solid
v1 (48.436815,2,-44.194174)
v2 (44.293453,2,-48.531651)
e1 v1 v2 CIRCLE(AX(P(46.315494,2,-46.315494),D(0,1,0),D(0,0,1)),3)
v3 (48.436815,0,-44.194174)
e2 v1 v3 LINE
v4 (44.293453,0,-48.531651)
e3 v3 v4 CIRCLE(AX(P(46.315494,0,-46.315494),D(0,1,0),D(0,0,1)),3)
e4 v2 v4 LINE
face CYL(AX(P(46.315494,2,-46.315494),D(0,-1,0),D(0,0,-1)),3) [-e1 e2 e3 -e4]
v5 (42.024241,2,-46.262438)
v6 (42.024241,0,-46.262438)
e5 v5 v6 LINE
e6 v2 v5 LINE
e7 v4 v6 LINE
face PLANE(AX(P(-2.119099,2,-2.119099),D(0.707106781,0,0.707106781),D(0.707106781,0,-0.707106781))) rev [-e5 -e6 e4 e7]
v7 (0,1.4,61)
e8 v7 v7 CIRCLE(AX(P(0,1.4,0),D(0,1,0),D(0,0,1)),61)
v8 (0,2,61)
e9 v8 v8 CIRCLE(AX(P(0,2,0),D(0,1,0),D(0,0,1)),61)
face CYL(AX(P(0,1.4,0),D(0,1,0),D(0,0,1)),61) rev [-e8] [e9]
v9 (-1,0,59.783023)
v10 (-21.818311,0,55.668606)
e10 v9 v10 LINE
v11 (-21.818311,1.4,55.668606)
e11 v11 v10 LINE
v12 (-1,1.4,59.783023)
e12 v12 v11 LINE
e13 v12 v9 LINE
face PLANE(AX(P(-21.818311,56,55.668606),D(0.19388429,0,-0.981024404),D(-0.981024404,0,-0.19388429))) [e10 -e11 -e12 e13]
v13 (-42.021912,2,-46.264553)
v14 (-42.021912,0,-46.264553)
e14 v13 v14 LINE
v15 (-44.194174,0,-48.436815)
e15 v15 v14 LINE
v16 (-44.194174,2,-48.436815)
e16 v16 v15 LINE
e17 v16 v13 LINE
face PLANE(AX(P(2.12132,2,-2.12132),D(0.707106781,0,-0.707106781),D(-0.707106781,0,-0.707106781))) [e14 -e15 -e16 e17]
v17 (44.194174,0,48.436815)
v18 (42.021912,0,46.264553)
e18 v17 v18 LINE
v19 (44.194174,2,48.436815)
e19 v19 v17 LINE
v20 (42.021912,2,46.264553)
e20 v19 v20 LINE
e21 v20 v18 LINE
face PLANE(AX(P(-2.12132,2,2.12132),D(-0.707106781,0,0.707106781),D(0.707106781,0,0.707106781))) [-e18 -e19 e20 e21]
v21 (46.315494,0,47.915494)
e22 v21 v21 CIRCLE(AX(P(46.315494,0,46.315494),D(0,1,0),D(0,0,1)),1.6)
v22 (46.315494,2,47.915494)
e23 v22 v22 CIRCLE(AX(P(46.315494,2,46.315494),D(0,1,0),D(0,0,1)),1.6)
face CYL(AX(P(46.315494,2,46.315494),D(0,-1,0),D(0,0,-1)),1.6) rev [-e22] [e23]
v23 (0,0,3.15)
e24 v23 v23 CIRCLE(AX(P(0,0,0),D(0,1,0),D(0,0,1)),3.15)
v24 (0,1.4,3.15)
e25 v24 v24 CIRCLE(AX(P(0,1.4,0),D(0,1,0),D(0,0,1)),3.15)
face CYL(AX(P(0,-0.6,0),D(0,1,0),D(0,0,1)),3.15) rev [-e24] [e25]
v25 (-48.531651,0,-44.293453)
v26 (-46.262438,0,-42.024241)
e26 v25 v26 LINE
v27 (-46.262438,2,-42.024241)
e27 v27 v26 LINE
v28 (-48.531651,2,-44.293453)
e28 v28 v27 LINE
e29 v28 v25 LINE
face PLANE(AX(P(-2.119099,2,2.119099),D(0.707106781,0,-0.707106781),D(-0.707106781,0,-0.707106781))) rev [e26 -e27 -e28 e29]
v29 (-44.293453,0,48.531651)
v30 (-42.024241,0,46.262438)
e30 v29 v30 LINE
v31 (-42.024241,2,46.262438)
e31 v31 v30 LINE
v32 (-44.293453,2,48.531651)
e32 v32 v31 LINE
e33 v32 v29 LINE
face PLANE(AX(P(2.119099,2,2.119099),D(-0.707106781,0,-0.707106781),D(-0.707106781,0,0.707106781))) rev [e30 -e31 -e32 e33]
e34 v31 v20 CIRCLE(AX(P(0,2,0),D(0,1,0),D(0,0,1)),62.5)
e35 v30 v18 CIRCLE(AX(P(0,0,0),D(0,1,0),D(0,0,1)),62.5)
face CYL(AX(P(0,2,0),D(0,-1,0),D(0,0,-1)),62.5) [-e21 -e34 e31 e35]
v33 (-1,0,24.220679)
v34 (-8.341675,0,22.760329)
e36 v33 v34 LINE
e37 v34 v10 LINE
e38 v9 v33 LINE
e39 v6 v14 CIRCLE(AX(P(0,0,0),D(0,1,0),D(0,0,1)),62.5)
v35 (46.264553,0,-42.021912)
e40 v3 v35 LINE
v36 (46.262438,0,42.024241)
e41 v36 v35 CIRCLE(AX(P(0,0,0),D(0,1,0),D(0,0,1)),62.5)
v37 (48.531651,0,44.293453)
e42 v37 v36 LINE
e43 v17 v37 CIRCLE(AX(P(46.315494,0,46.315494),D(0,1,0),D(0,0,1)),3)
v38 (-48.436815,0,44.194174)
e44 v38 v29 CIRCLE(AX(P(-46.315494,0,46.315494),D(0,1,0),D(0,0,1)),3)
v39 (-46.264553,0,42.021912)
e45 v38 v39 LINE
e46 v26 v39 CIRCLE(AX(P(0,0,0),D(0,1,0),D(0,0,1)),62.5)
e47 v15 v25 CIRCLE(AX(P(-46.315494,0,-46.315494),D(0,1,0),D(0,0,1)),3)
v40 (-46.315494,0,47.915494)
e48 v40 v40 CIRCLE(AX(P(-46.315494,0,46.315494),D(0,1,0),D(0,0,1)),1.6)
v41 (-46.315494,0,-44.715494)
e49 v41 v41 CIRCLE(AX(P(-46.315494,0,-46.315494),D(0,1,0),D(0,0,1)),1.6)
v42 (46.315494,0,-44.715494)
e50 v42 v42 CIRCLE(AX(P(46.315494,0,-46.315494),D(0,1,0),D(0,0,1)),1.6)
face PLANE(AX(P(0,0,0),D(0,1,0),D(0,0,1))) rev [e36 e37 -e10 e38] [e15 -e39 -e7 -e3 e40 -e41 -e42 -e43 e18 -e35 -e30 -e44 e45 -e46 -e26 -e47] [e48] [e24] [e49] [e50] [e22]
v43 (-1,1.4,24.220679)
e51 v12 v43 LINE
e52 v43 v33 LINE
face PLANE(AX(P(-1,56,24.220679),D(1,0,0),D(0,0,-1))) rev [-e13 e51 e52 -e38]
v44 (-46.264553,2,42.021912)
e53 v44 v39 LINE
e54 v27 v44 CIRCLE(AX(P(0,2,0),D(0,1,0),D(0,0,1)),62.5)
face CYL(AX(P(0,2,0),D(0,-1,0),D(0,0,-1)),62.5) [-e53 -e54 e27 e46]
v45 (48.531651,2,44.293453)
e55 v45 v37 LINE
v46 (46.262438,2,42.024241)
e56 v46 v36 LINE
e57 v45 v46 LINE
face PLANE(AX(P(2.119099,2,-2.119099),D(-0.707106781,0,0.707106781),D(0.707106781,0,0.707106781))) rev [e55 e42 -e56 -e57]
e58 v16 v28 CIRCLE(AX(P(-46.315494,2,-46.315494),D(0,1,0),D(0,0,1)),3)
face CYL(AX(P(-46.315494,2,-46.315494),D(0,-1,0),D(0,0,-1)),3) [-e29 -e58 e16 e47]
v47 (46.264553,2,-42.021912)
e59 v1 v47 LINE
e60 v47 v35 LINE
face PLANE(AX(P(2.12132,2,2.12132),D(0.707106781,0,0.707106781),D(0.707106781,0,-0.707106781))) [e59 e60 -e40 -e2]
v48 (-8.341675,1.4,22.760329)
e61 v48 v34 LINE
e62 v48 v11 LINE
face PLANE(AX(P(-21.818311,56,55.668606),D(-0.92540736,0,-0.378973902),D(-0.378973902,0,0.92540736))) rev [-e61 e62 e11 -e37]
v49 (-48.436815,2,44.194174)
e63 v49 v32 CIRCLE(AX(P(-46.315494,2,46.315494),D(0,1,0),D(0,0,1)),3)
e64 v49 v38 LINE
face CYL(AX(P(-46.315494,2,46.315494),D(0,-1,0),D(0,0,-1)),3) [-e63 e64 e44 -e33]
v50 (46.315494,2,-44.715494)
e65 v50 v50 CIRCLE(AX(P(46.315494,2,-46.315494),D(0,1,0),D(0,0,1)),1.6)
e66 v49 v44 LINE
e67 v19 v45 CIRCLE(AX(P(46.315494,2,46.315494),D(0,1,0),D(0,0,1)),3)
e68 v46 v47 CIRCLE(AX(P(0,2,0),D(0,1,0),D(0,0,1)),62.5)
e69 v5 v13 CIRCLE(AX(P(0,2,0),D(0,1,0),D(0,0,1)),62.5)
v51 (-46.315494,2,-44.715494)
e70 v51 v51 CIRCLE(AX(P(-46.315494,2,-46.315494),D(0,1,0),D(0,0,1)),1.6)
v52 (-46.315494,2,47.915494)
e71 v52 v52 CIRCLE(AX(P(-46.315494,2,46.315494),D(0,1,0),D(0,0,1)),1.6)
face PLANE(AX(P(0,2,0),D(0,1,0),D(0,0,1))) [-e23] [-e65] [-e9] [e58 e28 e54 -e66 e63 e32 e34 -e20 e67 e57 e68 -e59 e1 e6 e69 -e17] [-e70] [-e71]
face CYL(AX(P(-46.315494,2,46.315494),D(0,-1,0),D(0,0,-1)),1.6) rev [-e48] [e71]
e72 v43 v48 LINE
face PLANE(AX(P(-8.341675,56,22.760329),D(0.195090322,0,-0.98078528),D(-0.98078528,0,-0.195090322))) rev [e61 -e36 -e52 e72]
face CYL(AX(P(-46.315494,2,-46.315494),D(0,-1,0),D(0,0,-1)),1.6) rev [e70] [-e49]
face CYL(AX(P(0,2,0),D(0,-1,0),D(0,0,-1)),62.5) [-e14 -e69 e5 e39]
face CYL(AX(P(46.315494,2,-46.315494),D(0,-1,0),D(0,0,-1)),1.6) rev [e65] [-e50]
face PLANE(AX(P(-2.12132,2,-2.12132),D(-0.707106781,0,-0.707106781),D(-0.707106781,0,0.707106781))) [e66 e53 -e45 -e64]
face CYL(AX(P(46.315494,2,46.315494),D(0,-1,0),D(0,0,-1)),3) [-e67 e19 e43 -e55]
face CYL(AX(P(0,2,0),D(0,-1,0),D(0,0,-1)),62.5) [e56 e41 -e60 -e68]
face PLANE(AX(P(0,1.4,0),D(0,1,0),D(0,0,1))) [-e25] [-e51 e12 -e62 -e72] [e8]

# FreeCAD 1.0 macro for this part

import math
import FreeCAD as App
import Part
import Sketcher
from FreeCAD import Vector
Q = App.Units.Quantity

doc = App.newDocument("Part")
body = doc.addObject("PartDesign::Body", "Body")

# Sketch on XZ plane
sketch1 = body.newObject("Sketcher::SketchObject", "Sketch")
sketch1.AttachmentSupport = (doc.getObject("XZ_Plane"), [""])
sketch1.MapMode = "FlatFace"
sketch1.addGeometry([
    Part.ArcOfCircle(Part.Circle(Vector(-46.315494, -46.315494, 0), Vector(0, 0, 1), 3), math.radians(137.622401), math.radians(315)),  # 0
    Part.LineSegment(Vector(-48.531651, -44.293453, 0), Vector(-48.337535, -44.099337, 0)),  # 1
    Part.LineSegment(Vector(-48.337535, -44.099337, 0), Vector(-46.262438, -42.024241, 0)),  # 2
    Part.ArcOfCircle(Part.Circle(Vector(0, 0, 0), Vector(0, 0, 1), 62.5), math.radians(137.751255), math.radians(222.251629)),  # 3
    Part.LineSegment(Vector(-46.264553, 42.021912, 0), Vector(-48.436815, 44.194174, 0)),  # 4
    Part.ArcOfCircle(Part.Circle(Vector(-46.315494, 46.315494, 0), Vector(0, 0, 1), 3), math.radians(47.622401), math.radians(225)),  # 5
    Part.LineSegment(Vector(-44.293453, 48.531651, 0), Vector(-44.099337, 48.337535, 0)),  # 6
    Part.LineSegment(Vector(-44.099337, 48.337535, 0), Vector(-42.024241, 46.262438, 0)),  # 7
    Part.ArcOfCircle(Part.Circle(Vector(0, 0, 0), Vector(0, 0, 1), 62.5), math.radians(47.751255), math.radians(132.251629)),  # 8
    Part.LineSegment(Vector(42.021912, 46.264553, 0), Vector(44.194174, 48.436815, 0)),  # 9
    Part.ArcOfCircle(Part.Circle(Vector(46.315494, 46.315494, 0), Vector(0, 0, 1), 3), math.radians(-42.377599), math.radians(135)),  # 10
    Part.LineSegment(Vector(48.531651, 44.293453, 0), Vector(48.337535, 44.099337, 0)),  # 11
    Part.LineSegment(Vector(48.337535, 44.099337, 0), Vector(46.262438, 42.024241, 0)),  # 12
    Part.ArcOfCircle(Part.Circle(Vector(0, 0, 0), Vector(0, 0, 1), 62.5), math.radians(-42.248745), math.radians(42.251629)),  # 13
    Part.LineSegment(Vector(46.264553, -42.021912, 0), Vector(48.436815, -44.194174, 0)),  # 14
    Part.ArcOfCircle(Part.Circle(Vector(46.315494, -46.315494, 0), Vector(0, 0, 1), 3), math.radians(-132.377599), math.radians(45)),  # 15
    Part.LineSegment(Vector(44.293453, -48.531651, 0), Vector(44.099337, -48.337535, 0)),  # 16
    Part.LineSegment(Vector(44.099337, -48.337535, 0), Vector(42.024241, -46.262438, 0)),  # 17
    Part.ArcOfCircle(Part.Circle(Vector(0, 0, 0), Vector(0, 0, 1), 62.5), math.radians(-132.248745), math.radians(-47.748371)),  # 18
    Part.LineSegment(Vector(-42.021912, -46.264553, 0), Vector(-44.194174, -48.436815, 0)),  # 19
    Part.Circle(Vector(-46.315494, 46.315494, 0), Vector(0, 0, 1), 1.6),  # 20
    Part.Circle(Vector(46.315494, 46.315494, 0), Vector(0, 0, 1), 1.6),  # 21
    Part.Circle(Vector(-46.315494, -46.315494, 0), Vector(0, 0, 1), 1.6),  # 22
    Part.Circle(Vector(46.315494, -46.315494, 0), Vector(0, 0, 1), 1.6),  # 23
], False)
sketch1.addConstraint([
    Sketcher.Constraint("Coincident", 0, 1, 1, 1),
    Sketcher.Constraint("Coincident", 1, 2, 2, 1),
    Sketcher.Constraint("Coincident", 2, 2, 3, 2),
    Sketcher.Constraint("Coincident", 3, 1, 4, 1),
    Sketcher.Constraint("Tangent", 4, 2, 5, 2),
    Sketcher.Constraint("Coincident", 5, 1, 6, 1),
    Sketcher.Constraint("Coincident", 6, 2, 7, 1),
    Sketcher.Constraint("Coincident", 7, 2, 8, 2),
    Sketcher.Constraint("Coincident", 8, 1, 9, 1),
    Sketcher.Constraint("Tangent", 9, 2, 10, 2),
    Sketcher.Constraint("Coincident", 10, 1, 11, 1),
    Sketcher.Constraint("Coincident", 11, 2, 12, 1),
    Sketcher.Constraint("Coincident", 12, 2, 13, 2),
    Sketcher.Constraint("Coincident", 13, 1, 14, 1),
    Sketcher.Constraint("Tangent", 14, 2, 15, 2),
    Sketcher.Constraint("Coincident", 15, 1, 16, 1),
    Sketcher.Constraint("Coincident", 16, 2, 17, 1),
    Sketcher.Constraint("Coincident", 17, 2, 18, 2),
    Sketcher.Constraint("Coincident", 18, 1, 19, 1),
    Sketcher.Constraint("Tangent", 19, 2, 0, 2),
    Sketcher.Constraint("Coincident", 3, 3, -1, 1),
    Sketcher.Constraint("Coincident", 8, 3, -1, 1),
    Sketcher.Constraint("Coincident", 13, 3, -1, 1),
    Sketcher.Constraint("Coincident", 18, 3, -1, 1),
    Sketcher.Constraint("Coincident", 20, 3, 5, 3),
    Sketcher.Constraint("Coincident", 21, 3, 10, 3),
    Sketcher.Constraint("Coincident", 22, 3, 0, 3),
    Sketcher.Constraint("Coincident", 23, 3, 15, 3),
    Sketcher.Constraint("Equal", 0, 5),
    Sketcher.Constraint("Equal", 3, 8),
    Sketcher.Constraint("Equal", 5, 10),
    Sketcher.Constraint("Equal", 8, 13),
    Sketcher.Constraint("Equal", 10, 15),
    Sketcher.Constraint("Equal", 13, 18),
    Sketcher.Constraint("Equal", 20, 21),
    Sketcher.Constraint("Equal", 21, 22),
    Sketcher.Constraint("Equal", 22, 23),
    Sketcher.Constraint("Symmetric", 0, 3, 10, 3, -1, 1),
    Sketcher.Constraint("Symmetric", 5, 3, 15, 3, -1, 1),
    Sketcher.Constraint("Symmetric", 1, 2, 11, 2, -1, 1),
    Sketcher.Constraint("Symmetric", 6, 2, 16, 2, -1, 1),
    Sketcher.Constraint("Symmetric", 5, 3, 10, 3, -2),
    Sketcher.Constraint("Parallel", 1, 2),
    Sketcher.Constraint("Perpendicular", 2, 4),
    Sketcher.Constraint("Parallel", 4, 6),
    Sketcher.Constraint("Parallel", 6, 7),
    Sketcher.Constraint("Perpendicular", 7, 9),
    Sketcher.Constraint("Parallel", 9, 11),
    Sketcher.Constraint("Parallel", 11, 12),
    Sketcher.Constraint("Perpendicular", 12, 14),
    Sketcher.Constraint("Parallel", 14, 16),
    Sketcher.Constraint("Parallel", 16, 17),
    Sketcher.Constraint("Perpendicular", 17, 19),
    Sketcher.Constraint("Equal", 1, 6),
    Sketcher.Constraint("Equal", 2, 7),
    Sketcher.Constraint("Equal", 4, 9),
    Sketcher.Constraint("Radius", 0, 3.0),
    Sketcher.Constraint("Diameter", 20, 3.2),
    Sketcher.Constraint("Radius", 3, 62.5),
    Sketcher.Constraint("Angle", 1, Q("45 deg")),
    Sketcher.Constraint("DistanceX", 3, 1, 5, 1, 1.9711),
    Sketcher.Constraint("Distance", 1, 0.274521),
    Sketcher.Constraint("Distance", 2, 2.93463),
])
pad1 = body.newObject("PartDesign::Pad", "Pad")
pad1.Profile = sketch1
pad1.Length = 2
pad1.Reversed = True

# Sketch on XZ plane
sketch2 = body.newObject("Sketcher::SketchObject", "Sketch001")
sketch2.AttachmentSupport = (doc.getObject("XZ_Plane"), [""])
sketch2.MapMode = "FlatFace"
sketch2.AttachmentOffset = App.Placement(Vector(0, 0, -2), App.Rotation())
sketch2.addGeometry(Part.Circle(Vector(0, 0, 0), Vector(0, 0, 1), 61), False)
sketch2.addConstraint([
    Sketcher.Constraint("Coincident", 0, 3, -1, 1),
    Sketcher.Constraint("Diameter", 0, 122.0),
])
pocket1 = body.newObject("PartDesign::Pocket", "Pocket")
pocket1.Profile = sketch2
pocket1.Length = 0.6
pocket1.Reversed = True

# Sketch on XZ plane
sketch3 = body.newObject("Sketcher::SketchObject", "Sketch002")
sketch3.AttachmentSupport = (doc.getObject("XZ_Plane"), [""])
sketch3.MapMode = "FlatFace"
sketch3.AttachmentOffset = App.Placement(Vector(0, 0, -1.4), App.Rotation())
sketch3.addGeometry(Part.Circle(Vector(0, 0, 0), Vector(0, 0, 1), 3.15), False)
sketch3.addConstraint([
    Sketcher.Constraint("Coincident", 0, 3, -1, 1),
    Sketcher.Constraint("Diameter", 0, 6.3),
])
pocket2 = body.newObject("PartDesign::Pocket", "Pocket001")
pocket2.Profile = sketch3
pocket2.Length = 2
pocket2.Reversed = True

# Sketch on XZ plane
sketch4 = body.newObject("Sketcher::SketchObject", "Sketch003")
sketch4.AttachmentSupport = (doc.getObject("XZ_Plane"), [""])
sketch4.MapMode = "FlatFace"
sketch4.addGeometry([
    Part.LineSegment(Vector(-8.341675, 22.760329, 0), Vector(-21.818311, 55.668606, 0)),
    Part.LineSegment(Vector(-21.818311, 55.668606, 0), Vector(-1, 59.783023, 0)),
    Part.LineSegment(Vector(-1, 59.783023, 0), Vector(-1, 24.220679, 0)),
    Part.LineSegment(Vector(-1, 24.220679, 0), Vector(-8.341675, 22.760329, 0)),
], False)
sketch4.addConstraint([
    Sketcher.Constraint("Coincident", 0, 2, 1, 1),
    Sketcher.Constraint("Coincident", 1, 2, 2, 1),
    Sketcher.Constraint("Coincident", 2, 2, 3, 1),
    Sketcher.Constraint("Coincident", 3, 2, 0, 1),
    Sketcher.Constraint("Vertical", 2),
    Sketcher.Constraint("DistanceX", 1, 2, -1, 1, 1.0),
    Sketcher.Constraint("Angle", 3, Q("-168.75 deg")),
    Sketcher.Constraint("DistanceY", 2, 2, 2, 1, 35.562344),
    Sketcher.Constraint("DistanceX", 0, 2, -1, 1, 21.818311),
    Sketcher.Constraint("DistanceY", -1, 1, 2, 2, 24.220679),
    Sketcher.Constraint("DistanceY", -1, 1, 3, 2, 22.760329),
    Sketcher.Constraint("Distance", 0, 35.560855),
])
pocket3 = body.newObject("PartDesign::Pocket", "Pocket002")
pocket3.Profile = sketch4
pocket3.Type = "ThroughAll"
pocket3.Midplane = True

doc.recompute()
